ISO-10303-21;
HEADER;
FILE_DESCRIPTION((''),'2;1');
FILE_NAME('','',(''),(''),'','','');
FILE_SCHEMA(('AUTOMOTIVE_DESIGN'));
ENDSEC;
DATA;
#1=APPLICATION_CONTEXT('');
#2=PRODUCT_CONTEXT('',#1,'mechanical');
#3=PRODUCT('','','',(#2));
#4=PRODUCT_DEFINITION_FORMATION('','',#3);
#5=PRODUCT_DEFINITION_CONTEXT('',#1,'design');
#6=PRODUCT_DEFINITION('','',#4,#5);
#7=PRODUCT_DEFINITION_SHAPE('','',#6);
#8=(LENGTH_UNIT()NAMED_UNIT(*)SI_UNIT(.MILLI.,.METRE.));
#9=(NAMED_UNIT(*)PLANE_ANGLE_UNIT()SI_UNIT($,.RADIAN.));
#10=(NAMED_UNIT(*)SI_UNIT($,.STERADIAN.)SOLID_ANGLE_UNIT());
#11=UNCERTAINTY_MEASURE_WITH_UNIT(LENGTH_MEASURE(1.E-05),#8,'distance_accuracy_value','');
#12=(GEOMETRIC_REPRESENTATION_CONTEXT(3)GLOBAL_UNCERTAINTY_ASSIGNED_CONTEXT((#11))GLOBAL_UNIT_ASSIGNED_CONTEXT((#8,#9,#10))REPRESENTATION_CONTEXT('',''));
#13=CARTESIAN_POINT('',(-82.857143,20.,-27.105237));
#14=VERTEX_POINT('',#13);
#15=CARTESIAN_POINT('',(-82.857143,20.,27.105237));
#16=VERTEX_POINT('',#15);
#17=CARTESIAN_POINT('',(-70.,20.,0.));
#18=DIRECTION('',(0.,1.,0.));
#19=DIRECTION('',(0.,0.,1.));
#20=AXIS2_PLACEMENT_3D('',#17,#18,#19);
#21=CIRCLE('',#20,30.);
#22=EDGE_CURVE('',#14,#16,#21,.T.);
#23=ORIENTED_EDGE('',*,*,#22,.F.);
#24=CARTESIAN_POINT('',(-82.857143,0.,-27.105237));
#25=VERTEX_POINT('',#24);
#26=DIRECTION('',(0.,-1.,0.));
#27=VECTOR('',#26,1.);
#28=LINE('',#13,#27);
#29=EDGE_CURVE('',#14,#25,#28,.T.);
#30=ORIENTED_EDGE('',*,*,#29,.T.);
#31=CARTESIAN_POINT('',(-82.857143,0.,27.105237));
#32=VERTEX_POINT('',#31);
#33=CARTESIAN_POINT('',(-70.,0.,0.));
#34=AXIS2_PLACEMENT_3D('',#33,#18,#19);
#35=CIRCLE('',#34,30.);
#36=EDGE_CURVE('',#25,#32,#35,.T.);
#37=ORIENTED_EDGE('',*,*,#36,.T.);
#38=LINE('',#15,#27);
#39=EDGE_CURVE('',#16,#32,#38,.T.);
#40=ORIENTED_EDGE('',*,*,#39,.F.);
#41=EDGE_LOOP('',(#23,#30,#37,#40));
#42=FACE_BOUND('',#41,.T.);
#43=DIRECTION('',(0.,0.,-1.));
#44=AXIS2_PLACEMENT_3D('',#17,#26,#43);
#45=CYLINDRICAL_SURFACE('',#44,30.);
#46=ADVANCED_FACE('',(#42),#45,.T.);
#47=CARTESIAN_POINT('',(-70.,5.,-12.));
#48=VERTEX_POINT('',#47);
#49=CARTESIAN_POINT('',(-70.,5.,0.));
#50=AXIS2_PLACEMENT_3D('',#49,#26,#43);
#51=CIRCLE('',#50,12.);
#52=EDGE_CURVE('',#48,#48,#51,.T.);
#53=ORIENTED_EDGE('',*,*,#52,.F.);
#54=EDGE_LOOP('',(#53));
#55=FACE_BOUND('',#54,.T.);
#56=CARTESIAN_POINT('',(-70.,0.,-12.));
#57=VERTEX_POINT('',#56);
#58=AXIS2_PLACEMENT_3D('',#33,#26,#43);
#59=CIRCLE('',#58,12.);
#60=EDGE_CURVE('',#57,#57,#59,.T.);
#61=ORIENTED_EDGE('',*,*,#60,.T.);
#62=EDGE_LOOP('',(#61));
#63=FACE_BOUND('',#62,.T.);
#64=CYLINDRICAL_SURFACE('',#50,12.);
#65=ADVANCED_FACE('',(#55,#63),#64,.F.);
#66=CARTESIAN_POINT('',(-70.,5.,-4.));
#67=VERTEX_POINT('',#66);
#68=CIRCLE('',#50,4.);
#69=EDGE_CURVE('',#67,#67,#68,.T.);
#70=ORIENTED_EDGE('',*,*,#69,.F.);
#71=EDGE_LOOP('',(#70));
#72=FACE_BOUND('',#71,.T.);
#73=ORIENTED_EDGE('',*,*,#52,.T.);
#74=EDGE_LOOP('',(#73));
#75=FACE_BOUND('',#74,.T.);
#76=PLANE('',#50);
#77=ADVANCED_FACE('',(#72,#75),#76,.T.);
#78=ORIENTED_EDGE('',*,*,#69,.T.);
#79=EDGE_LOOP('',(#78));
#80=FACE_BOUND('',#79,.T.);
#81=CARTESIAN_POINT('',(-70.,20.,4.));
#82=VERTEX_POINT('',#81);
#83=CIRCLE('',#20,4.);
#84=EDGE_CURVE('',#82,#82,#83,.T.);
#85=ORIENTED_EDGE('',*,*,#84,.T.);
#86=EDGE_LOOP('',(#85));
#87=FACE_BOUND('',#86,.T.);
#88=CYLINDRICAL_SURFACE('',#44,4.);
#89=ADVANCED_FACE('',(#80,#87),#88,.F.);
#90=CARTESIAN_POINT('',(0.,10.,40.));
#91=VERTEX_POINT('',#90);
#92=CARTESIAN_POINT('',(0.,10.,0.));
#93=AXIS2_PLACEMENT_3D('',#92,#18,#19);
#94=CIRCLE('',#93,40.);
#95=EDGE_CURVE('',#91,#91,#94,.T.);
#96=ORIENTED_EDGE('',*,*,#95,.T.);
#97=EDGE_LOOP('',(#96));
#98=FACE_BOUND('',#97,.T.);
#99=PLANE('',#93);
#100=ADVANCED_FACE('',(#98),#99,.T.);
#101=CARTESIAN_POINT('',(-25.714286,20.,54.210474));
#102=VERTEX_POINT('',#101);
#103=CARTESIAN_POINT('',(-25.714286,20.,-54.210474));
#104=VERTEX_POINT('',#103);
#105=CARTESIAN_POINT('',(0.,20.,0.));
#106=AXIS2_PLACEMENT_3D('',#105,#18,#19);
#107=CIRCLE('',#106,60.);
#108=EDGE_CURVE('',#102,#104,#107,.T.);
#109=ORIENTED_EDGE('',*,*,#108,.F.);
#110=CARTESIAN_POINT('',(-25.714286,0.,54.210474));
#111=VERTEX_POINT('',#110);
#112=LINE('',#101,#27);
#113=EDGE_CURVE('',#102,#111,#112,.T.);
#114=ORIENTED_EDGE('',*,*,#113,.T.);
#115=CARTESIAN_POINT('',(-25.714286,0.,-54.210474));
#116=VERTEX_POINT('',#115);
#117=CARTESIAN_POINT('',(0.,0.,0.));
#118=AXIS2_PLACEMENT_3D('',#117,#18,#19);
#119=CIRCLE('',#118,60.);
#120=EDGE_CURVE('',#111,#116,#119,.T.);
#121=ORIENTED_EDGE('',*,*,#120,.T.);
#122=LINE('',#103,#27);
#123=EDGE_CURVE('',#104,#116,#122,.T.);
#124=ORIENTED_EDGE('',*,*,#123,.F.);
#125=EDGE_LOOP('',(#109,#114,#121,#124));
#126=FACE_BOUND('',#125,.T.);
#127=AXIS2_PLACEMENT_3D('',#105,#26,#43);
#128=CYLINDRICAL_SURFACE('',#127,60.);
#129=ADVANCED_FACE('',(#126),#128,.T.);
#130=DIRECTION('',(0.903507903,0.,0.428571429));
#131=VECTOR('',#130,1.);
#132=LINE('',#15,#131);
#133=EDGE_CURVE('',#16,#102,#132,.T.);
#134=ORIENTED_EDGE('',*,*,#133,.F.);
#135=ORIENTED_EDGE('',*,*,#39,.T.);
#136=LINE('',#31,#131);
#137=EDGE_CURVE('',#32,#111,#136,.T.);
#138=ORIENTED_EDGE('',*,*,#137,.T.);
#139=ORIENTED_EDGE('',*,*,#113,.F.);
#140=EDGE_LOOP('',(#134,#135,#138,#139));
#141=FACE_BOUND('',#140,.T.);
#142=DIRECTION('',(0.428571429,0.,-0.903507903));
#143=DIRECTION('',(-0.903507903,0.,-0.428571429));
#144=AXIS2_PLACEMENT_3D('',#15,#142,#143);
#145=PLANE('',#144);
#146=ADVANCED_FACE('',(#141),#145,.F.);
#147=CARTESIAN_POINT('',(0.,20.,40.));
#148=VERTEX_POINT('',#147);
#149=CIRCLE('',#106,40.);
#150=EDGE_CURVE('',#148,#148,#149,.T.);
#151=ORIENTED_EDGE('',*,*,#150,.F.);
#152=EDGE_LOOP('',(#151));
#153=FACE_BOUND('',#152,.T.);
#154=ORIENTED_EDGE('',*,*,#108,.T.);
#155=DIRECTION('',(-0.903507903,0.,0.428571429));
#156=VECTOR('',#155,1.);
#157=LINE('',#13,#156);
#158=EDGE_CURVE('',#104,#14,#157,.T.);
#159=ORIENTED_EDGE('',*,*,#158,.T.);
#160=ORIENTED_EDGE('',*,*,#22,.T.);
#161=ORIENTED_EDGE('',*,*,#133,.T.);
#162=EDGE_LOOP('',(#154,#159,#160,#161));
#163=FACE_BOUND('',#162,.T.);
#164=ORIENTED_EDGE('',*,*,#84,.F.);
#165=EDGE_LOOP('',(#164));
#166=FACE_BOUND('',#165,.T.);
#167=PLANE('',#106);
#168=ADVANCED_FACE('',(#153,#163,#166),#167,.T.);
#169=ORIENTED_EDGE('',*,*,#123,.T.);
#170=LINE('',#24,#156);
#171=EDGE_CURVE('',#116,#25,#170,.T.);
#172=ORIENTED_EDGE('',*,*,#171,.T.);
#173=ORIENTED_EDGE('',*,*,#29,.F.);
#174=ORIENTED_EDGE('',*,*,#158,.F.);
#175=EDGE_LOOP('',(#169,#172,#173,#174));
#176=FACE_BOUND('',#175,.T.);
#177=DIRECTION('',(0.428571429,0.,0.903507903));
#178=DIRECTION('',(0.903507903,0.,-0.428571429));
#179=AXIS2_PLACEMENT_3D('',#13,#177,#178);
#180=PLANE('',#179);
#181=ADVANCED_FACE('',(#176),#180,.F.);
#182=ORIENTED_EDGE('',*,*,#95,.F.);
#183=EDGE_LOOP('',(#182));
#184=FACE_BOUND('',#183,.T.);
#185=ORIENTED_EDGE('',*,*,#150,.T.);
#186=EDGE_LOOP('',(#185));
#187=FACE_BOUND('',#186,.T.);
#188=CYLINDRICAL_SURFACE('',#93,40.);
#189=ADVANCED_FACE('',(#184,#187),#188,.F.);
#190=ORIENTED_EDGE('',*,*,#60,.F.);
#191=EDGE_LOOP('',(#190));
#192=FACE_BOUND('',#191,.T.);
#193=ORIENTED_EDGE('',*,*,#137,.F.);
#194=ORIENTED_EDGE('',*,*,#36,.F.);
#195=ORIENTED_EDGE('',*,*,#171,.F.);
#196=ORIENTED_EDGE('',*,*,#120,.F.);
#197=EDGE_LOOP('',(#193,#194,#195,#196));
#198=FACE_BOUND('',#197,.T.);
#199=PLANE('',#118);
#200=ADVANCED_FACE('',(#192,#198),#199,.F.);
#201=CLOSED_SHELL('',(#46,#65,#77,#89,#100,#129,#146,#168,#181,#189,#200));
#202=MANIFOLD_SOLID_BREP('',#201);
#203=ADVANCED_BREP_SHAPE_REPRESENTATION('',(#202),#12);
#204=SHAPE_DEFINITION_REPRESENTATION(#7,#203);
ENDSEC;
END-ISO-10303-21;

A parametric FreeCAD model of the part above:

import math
import FreeCAD as App
import Part
import Sketcher
from FreeCAD import Vector
Q = App.Units.Quantity

doc = App.newDocument("Part")
params = doc.addObject("Spreadsheet::Sheet", "Params")
for row, (alias, value) in enumerate([
    ("sketch1_diameter", "120 mm"),
    ("pad1_length", "20 mm"),
    ("sketch2_diameter", "8 mm"),
    ("sketch2_radius", "30 mm"),
    ("sketch2_radius2", "60 mm"),
    ("pad2_length", "20 mm"),
    ("sketch3_diameter", "80 mm"),
    ("pocket1_length", "10 mm"),
    ("sketch4_diameter", "24 mm"),
    ("pocket2_length", "5 mm"),
], start=1):
    params.set(f"A{row}", alias)
    params.set(f"B{row}", "=" + value)
    params.setAlias(f"B{row}", alias)

body = doc.addObject("PartDesign::Body", "Body")

sketch1 = body.newObject("Sketcher::SketchObject", "Sketch")
sketch1.AttachmentSupport = (doc.getObject("XZ_Plane"), [""])
sketch1.MapMode = "FlatFace"
sketch1.addGeometry(Part.Circle(Vector(0, 0, 0), Vector(0, 0, 1), 60), False)
sketch1.addConstraint([
    Sketcher.Constraint("Coincident", 0, 3, -1, 1),
    Sketcher.Constraint("Diameter", 0, Q("120 mm")),
])
sketch1.setExpression("Constraints[1]", "Params.sketch1_diameter")
pad1 = body.newObject("PartDesign::Pad", "Pad")
pad1.Profile = sketch1
pad1.setExpression("Length", "Params.pad1_length")
pad1.Reversed = True

sketch2 = body.newObject("Sketcher::SketchObject", "Sketch001")
sketch2.AttachmentSupport = (doc.getObject("XZ_Plane"), [""])
sketch2.MapMode = "FlatFace"
sketch2.addGeometry([
    Part.LineSegment(Vector(-25.7, -54.2, 0), Vector(-82.9, -27.1, 0)),
    Part.ArcOfCircle(Part.Circle(Vector(-70, 0, 0), Vector(0, 0, 1), 30), math.radians(115), math.radians(245)),
    Part.LineSegment(Vector(-82.9, 27.1, 0), Vector(-25.7, 54.2, 0)),
    Part.ArcOfCircle(Part.Circle(Vector(0, 0, 0), Vector(0, 0, 1), 60), math.radians(-115), math.radians(115)),
    Part.Circle(Vector(-70, 0, 0), Vector(0, 0, 1), 4),
], False)
sketch2.addConstraint([
    Sketcher.Constraint("Tangent", 0, 2, 1, 2),
    Sketcher.Constraint("Tangent", 1, 1, 2, 1),
    Sketcher.Constraint("Tangent", 2, 2, 3, 2),
    Sketcher.Constraint("Tangent", 3, 1, 0, 1),
    Sketcher.Constraint("Coincident", 3, 3, -1, 1),
    Sketcher.Constraint("Coincident", 4, 3, 1, 3),
    Sketcher.Constraint("PointOnObject", 1, 3, -1),
    Sketcher.Constraint("Diameter", 4, Q("8 mm")),
    Sketcher.Constraint("Radius", 1, Q("30 mm")),
    Sketcher.Constraint("Radius", 3, Q("60 mm")),
    Sketcher.Constraint("DistanceX", 1, 3, -1, 1, Q("70 mm")),
])
sketch2.setExpression("Constraints[7]", "Params.sketch2_diameter")
sketch2.setExpression("Constraints[8]", "Params.sketch2_radius")
sketch2.setExpression("Constraints[9]", "Params.sketch2_radius2")
pad2 = body.newObject("PartDesign::Pad", "Pad001")
pad2.Profile = sketch2
pad2.setExpression("Length", "Params.pad2_length")
pad2.Reversed = True

sketch3 = body.newObject("Sketcher::SketchObject", "Sketch002")
sketch3.AttachmentSupport = (doc.getObject("XZ_Plane"), [""])
sketch3.MapMode = "FlatFace"
sketch3.AttachmentOffset = App.Placement(Vector(0, 0, -20), App.Rotation())
sketch3.addGeometry(Part.Circle(Vector(0, 0, 0), Vector(0, 0, 1), 40), False)
sketch3.addConstraint([
    Sketcher.Constraint("Coincident", 0, 3, -1, 1),
    Sketcher.Constraint("Diameter", 0, Q("80 mm")),
])
sketch3.setExpression("Constraints[1]", "Params.sketch3_diameter")
pocket1 = body.newObject("PartDesign::Pocket", "Pocket")
pocket1.Profile = sketch3
pocket1.setExpression("Length", "Params.pocket1_length")
pocket1.Reversed = True

sketch4 = body.newObject("Sketcher::SketchObject", "Sketch003")
sketch4.AttachmentSupport = (doc.getObject("XZ_Plane"), [""])
sketch4.MapMode = "FlatFace"
sketch4.addGeometry(Part.Circle(Vector(-70, 0, 0), Vector(0, 0, 1), 12), False)
sketch4.addConstraint([
    Sketcher.Constraint("PointOnObject", 0, 3, -1),
    Sketcher.Constraint("Diameter", 0, Q("24 mm")),
    Sketcher.Constraint("DistanceX", 0, 3, -1, 1, Q("70 mm")),
])
sketch4.setExpression("Constraints[1]", "Params.sketch4_diameter")
pocket2 = body.newObject("PartDesign::Pocket", "Pocket001")
pocket2.Profile = sketch4
pocket2.setExpression("Length", "Params.pocket2_length")

doc.recompute()
